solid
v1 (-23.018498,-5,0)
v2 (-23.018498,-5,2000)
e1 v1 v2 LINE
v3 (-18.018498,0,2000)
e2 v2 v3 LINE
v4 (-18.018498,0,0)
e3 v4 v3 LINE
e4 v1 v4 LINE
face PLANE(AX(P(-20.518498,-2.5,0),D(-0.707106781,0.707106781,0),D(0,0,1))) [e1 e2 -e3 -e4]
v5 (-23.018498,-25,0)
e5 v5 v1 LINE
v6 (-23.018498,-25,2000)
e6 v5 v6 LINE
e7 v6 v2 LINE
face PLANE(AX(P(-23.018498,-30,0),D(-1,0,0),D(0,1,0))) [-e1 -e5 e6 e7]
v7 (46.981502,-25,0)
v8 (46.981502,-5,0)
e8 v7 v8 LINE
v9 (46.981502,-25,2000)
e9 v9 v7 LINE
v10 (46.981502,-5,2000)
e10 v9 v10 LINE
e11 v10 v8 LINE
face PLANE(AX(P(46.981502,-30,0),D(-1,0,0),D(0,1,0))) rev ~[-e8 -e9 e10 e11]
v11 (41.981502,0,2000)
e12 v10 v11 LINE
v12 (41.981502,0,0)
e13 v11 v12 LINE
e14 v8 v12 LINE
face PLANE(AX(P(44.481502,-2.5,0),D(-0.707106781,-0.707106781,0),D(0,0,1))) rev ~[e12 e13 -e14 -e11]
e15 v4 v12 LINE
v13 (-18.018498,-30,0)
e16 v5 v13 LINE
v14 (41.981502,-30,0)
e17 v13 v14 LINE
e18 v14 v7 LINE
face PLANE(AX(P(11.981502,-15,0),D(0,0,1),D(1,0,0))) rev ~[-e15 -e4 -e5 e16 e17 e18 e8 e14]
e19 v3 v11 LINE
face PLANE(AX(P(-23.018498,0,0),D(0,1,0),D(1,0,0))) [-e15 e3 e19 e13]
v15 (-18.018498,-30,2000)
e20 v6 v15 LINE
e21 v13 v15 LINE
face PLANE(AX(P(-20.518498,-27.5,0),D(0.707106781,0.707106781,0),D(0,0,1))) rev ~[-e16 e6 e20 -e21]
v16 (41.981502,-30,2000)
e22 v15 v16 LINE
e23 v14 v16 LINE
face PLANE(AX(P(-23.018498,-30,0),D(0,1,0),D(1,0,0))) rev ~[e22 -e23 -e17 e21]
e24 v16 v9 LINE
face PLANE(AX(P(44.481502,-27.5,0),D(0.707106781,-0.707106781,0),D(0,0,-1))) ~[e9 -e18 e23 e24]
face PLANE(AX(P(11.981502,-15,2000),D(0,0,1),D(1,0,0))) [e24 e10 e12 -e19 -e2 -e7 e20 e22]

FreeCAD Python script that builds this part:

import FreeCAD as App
import Part
import Sketcher


def edges_at(feature, points):
    """Names of the edges that pass closest to the given points."""
    edges = feature.Shape.Edges
    near = lambda p: min(range(len(edges)), key=lambda i: edges[i].distToShape(Part.Vertex(*p))[0])
    return sorted({f"Edge{near(p) + 1}" for p in points})


def add_polygon(sketch, points):
    """Adds a closed chain of lines whose ends are joined by coincident constraints."""
    first, n = sketch.GeometryCount, len(points)
    for a, b in zip(points, points[1:] + points[:1]):
        sketch.addGeometry(Part.LineSegment(App.Vector(*a, 0), App.Vector(*b, 0)), False)
    for i in range(n):
        sketch.addConstraint(Sketcher.Constraint("Coincident", first + i, 2, first + (i + 1) % n, 1))

doc = App.newDocument("Part")
body = doc.addObject("PartDesign::Body", "Body")

sketch1 = doc.addObject("Sketcher::SketchObject", "Sketch")
body.addObject(sketch1)
sketch1.AttachmentSupport = (doc.XY_Plane, [""])
sketch1.MapMode = "FlatFace"
add_polygon(sketch1, [(-23, 0), (-23, -30), (47, -30), (47, 0)])
sketch1.addConstraint([
    Sketcher.Constraint("Vertical", 0),
    Sketcher.Constraint("Horizontal", 1),
    Sketcher.Constraint("Vertical", 2),
    Sketcher.Constraint("Horizontal", 3),
    Sketcher.Constraint("PointOnObject", 2, 2, -1),
    Sketcher.Constraint("DistanceX", 1, 1, 1, 2, 70.0),
    Sketcher.Constraint("DistanceY", 0, 2, 0, 1, 30.0),
    Sketcher.Constraint("DistanceX", 0, 2, -1, 1, 23.018498),
])
pad1 = doc.addObject("PartDesign::Pad", "Pad")
body.addObject(pad1)
pad1.Profile = sketch1
pad1.Length = 2000
doc.recompute()

chamfer = doc.addObject("PartDesign::Chamfer", "Chamfer")
body.addObject(chamfer)
chamfer.Base = (pad1, edges_at(pad1, [
    (-23.018, -30, 1000),
    (46.982, -30, 1000),
    (-23.018, 0, 1000),
    (46.982, 0, 1000),
]))
chamfer.Size = 5

sketch2 = doc.addObject("Sketcher::SketchObject", "Sketch001")
body.addObject(sketch2)
sketch2.AttachmentSupport = (doc.XY_Plane, [""])
sketch2.MapMode = "FlatFace"
sketch2.AttachmentOffset = App.Placement(App.Vector(0, 0, 2000), App.Rotation())
add_polygon(sketch2, [(42, 0), (-18, 0), (-23, -5), (-23, -25), (-18, -30), (42, -30), (47, -25), (47, -5)])
sketch2.addConstraint([
    Sketcher.Constraint("Horizontal", 0),
    Sketcher.Constraint("Vertical", 2),
    Sketcher.Constraint("Horizontal", 4),
    Sketcher.Constraint("Vertical", 6),
    Sketcher.Constraint("PointOnObject", 0, 2, -1),
    Sketcher.Constraint("Perpendicular", 1, 3),
    Sketcher.Constraint("Perpendicular", 3, 5),
    Sketcher.Constraint("Perpendicular", 5, 7),
    Sketcher.Constraint("Horizontal", 2, 2, 5, 2),
    Sketcher.Constraint("Horizontal", 1, 2, 6, 2),
    Sketcher.Constraint("Vertical", 0, 2, 3, 2),
    Sketcher.Constraint("Vertical", 4, 2, 7, 2),
    Sketcher.Constraint("DistanceX", 0, 2, 0, 1, 60.0),
    Sketcher.Constraint("DistanceY", 2, 2, 2, 1, 20.0),
    Sketcher.Constraint("DistanceY", 1, 2, -1, 1, 5.0),
    Sketcher.Constraint("DistanceX", 0, 2, -1, 1, 18.018498),
])
pad2 = doc.addObject("PartDesign::Pad", "Pad001")
body.addObject(pad2)
pad2.Profile = sketch2
pad2.Length = 1047
pad2.Reversed = True

doc.recompute()
